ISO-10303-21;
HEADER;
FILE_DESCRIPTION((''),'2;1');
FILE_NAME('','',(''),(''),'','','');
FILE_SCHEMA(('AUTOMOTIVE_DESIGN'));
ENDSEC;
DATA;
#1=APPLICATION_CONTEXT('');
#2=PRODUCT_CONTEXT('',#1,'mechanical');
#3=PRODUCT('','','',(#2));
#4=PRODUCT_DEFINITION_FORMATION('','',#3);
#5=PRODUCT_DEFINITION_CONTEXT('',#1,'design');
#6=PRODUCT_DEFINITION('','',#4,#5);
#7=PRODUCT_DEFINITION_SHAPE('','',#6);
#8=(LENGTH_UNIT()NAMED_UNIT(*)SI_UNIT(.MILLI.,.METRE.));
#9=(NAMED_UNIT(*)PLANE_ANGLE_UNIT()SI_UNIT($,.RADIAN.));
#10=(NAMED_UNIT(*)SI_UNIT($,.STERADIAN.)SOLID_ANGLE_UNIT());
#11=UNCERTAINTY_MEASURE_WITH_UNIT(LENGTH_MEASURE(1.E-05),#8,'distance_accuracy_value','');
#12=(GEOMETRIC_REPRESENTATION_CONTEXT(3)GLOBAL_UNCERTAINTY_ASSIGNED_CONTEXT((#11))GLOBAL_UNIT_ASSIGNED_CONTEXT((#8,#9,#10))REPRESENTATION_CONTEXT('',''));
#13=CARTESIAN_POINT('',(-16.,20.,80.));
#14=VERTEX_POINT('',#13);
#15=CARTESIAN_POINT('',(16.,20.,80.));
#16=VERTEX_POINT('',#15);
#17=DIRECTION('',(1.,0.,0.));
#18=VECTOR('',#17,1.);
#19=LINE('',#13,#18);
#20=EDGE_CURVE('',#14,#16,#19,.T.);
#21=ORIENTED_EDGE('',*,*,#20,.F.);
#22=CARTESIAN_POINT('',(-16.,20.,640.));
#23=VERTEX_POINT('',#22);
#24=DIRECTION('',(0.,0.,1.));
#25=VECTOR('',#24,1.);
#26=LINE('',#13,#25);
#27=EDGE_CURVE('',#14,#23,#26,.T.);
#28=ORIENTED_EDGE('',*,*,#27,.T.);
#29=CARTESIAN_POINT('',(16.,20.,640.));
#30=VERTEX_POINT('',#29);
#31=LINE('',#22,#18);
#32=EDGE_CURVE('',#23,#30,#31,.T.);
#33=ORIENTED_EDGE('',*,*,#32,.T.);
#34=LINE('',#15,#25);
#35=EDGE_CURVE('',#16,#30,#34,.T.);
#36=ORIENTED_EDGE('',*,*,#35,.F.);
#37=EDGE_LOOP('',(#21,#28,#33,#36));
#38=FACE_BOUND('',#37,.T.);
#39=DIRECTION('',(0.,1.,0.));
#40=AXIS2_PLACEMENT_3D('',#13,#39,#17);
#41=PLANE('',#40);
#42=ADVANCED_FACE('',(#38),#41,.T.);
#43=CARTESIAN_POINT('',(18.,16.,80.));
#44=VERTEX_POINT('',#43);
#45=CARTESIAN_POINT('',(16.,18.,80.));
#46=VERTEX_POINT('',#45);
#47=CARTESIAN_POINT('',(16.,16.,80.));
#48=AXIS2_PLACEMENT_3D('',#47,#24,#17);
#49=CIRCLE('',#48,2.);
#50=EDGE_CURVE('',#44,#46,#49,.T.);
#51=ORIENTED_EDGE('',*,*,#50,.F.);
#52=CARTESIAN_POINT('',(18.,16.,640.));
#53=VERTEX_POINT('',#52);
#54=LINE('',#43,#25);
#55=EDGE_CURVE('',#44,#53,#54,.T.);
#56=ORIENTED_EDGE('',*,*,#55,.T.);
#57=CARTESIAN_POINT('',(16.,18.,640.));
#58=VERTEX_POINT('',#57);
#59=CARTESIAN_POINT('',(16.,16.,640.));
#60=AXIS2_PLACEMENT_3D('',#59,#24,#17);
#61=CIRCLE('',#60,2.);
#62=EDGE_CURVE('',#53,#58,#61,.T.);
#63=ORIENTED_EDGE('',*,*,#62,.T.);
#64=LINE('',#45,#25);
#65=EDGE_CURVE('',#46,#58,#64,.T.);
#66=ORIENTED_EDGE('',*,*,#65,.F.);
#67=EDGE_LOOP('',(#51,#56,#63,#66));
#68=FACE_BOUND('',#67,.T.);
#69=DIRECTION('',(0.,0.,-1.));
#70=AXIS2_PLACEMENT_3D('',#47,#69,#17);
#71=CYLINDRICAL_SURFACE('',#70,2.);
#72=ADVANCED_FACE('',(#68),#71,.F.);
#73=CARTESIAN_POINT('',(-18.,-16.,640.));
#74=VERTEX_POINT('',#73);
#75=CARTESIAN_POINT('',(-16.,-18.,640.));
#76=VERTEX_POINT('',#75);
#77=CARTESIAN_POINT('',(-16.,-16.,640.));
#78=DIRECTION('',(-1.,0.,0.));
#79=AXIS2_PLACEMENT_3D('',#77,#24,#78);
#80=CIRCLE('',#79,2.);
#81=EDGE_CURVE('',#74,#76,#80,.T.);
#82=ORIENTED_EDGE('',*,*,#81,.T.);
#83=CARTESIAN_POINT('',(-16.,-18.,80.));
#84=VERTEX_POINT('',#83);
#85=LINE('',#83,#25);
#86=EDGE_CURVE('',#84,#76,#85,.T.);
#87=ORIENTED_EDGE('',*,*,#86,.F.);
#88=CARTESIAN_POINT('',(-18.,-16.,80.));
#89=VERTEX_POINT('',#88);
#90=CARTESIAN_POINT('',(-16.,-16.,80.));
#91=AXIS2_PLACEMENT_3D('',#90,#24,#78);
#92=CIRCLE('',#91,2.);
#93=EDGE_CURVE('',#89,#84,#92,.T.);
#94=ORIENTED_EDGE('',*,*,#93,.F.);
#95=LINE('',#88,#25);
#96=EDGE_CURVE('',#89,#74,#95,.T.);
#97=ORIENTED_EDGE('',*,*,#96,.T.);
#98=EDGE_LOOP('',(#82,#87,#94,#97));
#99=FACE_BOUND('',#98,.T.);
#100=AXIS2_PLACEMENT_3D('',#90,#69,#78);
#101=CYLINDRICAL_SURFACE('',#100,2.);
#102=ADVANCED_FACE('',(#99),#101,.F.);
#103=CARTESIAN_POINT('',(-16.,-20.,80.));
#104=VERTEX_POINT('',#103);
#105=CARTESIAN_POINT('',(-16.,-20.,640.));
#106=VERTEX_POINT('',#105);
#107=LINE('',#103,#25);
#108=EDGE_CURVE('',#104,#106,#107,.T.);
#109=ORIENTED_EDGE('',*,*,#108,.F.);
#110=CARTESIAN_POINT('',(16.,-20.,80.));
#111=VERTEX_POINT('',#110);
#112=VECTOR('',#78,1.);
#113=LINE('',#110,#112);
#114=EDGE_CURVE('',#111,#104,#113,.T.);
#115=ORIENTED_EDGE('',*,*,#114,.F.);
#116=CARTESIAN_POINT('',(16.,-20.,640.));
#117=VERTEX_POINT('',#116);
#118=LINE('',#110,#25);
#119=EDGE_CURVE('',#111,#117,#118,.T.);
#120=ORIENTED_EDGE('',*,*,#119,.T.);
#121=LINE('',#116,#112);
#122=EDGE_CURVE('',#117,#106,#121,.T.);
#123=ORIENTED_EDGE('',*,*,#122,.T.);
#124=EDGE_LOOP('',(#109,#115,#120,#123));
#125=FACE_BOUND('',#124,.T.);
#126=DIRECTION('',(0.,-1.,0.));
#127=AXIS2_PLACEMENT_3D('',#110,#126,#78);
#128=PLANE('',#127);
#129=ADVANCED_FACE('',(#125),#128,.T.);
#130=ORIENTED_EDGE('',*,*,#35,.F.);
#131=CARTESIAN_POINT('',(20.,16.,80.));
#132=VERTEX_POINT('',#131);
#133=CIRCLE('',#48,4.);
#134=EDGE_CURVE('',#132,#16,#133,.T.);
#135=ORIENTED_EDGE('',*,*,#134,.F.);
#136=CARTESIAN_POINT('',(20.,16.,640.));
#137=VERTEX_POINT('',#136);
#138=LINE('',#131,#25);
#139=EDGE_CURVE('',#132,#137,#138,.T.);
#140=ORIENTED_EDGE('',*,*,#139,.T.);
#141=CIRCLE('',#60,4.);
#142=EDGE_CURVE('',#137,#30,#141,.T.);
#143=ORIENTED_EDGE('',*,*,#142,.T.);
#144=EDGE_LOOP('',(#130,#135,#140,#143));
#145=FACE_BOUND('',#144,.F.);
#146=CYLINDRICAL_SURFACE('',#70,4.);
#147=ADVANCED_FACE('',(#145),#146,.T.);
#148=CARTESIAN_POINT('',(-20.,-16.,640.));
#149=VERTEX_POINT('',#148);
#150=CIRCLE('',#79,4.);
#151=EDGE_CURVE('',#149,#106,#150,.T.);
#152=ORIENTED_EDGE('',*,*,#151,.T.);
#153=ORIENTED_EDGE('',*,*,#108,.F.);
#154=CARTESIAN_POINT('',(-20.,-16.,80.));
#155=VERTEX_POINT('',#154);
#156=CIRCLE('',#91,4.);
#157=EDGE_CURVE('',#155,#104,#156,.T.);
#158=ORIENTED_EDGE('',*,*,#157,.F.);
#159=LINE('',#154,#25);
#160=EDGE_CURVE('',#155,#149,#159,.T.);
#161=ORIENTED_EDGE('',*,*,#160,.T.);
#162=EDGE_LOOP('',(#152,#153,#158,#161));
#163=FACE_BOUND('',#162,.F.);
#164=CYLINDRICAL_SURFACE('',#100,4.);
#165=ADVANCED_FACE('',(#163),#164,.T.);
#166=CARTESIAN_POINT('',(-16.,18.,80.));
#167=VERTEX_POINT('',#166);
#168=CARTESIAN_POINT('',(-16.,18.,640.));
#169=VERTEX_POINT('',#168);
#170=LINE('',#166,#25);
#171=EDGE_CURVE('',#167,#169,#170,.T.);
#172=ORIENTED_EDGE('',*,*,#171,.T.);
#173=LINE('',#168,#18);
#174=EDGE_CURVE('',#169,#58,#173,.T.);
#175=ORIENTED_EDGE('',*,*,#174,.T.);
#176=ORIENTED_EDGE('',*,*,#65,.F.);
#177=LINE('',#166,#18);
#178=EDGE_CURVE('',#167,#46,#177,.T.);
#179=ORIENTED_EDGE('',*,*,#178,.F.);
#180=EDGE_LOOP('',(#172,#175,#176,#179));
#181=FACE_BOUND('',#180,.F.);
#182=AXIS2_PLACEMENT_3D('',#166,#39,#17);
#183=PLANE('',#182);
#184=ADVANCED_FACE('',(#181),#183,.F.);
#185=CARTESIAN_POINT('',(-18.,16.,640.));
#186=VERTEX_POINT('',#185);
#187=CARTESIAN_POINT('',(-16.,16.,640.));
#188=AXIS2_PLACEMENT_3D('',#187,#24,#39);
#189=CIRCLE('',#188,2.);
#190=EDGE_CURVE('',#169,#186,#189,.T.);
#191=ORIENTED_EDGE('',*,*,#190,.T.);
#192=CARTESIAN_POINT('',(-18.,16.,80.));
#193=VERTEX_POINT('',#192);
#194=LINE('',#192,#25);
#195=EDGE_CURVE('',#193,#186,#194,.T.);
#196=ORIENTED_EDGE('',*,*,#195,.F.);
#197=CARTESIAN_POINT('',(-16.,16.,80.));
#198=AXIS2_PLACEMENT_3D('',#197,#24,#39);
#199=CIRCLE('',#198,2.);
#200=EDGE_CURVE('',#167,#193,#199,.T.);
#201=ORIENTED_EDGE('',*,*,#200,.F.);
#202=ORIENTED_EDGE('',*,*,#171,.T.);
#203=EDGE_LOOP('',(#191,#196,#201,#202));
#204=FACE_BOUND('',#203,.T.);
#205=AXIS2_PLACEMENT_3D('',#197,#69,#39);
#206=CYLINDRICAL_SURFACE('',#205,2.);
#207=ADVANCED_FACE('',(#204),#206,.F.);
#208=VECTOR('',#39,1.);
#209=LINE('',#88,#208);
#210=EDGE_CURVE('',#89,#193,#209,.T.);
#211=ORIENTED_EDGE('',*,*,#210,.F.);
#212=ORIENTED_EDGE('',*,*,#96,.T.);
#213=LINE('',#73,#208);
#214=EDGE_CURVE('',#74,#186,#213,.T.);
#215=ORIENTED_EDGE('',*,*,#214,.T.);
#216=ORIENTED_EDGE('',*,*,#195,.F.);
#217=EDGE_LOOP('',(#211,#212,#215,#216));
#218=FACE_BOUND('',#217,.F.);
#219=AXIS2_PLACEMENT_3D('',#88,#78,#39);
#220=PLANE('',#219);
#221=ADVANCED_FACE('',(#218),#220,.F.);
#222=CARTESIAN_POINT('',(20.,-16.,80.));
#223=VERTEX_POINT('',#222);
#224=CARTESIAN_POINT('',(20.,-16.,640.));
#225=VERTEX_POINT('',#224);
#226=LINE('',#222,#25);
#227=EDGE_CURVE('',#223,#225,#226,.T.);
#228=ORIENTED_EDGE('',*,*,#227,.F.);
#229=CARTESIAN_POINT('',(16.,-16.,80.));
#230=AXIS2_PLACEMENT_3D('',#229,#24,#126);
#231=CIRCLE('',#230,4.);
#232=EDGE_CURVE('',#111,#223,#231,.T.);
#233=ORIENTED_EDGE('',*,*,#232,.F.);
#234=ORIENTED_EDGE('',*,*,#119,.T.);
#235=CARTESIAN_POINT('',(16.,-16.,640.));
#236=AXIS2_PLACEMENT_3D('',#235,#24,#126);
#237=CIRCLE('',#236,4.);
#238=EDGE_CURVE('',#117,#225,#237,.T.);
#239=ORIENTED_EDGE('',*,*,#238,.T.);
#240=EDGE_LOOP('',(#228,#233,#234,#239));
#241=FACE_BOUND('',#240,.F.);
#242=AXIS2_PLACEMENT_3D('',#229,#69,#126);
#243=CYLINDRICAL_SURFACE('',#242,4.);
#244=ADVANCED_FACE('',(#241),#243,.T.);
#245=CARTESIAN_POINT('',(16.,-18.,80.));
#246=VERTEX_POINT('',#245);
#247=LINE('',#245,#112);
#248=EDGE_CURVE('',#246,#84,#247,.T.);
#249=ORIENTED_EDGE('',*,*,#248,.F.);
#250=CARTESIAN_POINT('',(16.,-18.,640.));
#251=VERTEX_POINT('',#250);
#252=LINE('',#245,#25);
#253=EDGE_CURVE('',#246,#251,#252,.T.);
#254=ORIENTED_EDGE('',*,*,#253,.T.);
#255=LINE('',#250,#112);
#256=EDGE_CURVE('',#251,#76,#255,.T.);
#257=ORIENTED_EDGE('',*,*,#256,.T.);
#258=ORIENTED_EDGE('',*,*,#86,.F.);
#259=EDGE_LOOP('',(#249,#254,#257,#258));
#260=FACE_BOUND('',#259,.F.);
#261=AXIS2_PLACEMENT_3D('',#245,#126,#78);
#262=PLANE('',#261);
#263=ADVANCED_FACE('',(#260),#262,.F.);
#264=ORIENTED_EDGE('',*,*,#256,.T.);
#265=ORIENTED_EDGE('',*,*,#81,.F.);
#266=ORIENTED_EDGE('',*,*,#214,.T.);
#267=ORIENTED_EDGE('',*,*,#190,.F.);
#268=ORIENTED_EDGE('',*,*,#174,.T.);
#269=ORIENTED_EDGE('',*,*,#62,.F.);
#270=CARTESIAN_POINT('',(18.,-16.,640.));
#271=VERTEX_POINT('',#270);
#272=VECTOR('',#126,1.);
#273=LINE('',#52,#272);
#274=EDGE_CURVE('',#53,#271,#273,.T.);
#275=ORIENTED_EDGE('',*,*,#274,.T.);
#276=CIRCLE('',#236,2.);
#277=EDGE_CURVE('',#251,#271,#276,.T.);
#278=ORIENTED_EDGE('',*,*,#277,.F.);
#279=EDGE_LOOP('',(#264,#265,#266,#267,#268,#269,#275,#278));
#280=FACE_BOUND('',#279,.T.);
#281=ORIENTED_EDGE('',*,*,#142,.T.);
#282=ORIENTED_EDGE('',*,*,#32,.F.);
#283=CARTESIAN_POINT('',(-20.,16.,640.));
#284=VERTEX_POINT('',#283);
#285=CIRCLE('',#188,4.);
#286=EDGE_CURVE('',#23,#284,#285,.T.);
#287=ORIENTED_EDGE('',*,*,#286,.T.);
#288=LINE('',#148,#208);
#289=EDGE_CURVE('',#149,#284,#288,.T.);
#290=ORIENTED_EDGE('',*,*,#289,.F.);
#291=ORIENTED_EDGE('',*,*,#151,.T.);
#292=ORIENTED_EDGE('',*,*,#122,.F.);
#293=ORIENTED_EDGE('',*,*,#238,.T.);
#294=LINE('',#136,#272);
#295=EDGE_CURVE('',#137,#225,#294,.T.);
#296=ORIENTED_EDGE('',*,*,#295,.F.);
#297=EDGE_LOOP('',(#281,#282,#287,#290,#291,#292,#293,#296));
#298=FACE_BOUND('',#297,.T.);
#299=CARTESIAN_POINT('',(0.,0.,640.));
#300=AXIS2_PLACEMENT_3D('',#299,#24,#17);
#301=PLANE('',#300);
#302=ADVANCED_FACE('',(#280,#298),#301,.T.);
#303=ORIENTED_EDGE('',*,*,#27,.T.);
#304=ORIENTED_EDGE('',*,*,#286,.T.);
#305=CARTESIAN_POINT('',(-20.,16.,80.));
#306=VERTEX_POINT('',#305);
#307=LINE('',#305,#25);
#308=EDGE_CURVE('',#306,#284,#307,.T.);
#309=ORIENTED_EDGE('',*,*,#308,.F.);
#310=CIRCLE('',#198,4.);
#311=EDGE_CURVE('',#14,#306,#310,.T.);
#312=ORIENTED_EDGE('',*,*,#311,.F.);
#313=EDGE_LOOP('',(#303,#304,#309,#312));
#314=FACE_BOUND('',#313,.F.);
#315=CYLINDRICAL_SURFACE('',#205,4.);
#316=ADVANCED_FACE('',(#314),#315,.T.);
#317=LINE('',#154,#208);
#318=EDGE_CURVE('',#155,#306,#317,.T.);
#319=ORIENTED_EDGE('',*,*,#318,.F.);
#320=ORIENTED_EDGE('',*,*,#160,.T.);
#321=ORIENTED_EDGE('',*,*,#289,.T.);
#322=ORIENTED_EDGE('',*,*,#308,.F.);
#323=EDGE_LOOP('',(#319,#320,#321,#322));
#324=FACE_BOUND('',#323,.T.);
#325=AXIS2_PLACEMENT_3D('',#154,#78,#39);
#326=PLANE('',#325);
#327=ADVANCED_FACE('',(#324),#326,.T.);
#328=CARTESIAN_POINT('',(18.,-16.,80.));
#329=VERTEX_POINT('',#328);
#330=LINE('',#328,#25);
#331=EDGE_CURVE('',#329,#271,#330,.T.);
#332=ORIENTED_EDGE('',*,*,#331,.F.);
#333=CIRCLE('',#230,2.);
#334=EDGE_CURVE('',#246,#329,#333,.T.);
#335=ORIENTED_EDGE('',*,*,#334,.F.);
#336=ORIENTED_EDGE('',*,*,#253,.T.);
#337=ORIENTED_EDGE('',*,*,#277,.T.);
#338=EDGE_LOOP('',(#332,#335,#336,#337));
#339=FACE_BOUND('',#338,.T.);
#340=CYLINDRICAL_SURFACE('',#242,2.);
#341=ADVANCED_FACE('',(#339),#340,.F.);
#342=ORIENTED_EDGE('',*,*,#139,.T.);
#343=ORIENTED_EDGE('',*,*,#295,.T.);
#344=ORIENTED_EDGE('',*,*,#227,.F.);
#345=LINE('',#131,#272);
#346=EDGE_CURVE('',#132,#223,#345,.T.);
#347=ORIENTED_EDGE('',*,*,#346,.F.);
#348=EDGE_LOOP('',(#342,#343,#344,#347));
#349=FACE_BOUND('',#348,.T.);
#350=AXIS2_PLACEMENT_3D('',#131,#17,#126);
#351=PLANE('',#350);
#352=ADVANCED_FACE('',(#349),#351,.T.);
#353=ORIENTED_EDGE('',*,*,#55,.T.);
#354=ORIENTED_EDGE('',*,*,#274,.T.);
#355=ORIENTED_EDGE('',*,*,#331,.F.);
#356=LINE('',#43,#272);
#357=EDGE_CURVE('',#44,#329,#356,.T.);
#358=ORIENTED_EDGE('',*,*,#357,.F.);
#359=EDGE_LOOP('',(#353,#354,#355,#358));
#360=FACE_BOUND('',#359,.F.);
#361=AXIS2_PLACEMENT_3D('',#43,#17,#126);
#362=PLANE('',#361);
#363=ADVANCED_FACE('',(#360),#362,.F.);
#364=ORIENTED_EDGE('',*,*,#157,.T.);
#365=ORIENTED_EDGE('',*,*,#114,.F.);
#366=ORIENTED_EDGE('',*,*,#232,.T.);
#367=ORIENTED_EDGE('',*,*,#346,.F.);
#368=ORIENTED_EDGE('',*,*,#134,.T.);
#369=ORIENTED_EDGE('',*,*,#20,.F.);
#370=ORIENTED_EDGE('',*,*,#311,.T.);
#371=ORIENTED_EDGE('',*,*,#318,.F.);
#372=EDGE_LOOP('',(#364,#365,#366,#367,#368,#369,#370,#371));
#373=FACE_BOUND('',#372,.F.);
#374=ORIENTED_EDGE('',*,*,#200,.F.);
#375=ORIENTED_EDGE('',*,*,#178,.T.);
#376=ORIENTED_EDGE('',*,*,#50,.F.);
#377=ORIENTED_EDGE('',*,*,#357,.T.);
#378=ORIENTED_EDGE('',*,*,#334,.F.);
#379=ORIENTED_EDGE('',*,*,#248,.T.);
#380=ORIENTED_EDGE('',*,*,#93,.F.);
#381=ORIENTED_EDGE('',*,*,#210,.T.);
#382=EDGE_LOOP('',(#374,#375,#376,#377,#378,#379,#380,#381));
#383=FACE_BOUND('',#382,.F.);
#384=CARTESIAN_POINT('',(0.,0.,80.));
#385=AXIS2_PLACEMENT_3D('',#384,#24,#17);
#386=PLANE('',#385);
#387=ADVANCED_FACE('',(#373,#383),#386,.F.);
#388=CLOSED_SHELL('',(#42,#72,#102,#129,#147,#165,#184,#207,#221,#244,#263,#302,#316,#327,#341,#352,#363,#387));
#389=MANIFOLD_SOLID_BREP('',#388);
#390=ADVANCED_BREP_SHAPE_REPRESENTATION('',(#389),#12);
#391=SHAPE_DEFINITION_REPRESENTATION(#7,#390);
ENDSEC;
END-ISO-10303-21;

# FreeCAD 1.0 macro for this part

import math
import FreeCAD as App
import Part
import Sketcher
from FreeCAD import Vector
Q = App.Units.Quantity

doc = App.newDocument("Part")
body = doc.addObject("PartDesign::Body", "Body")

# Sketch on XY plane
sketch1 = body.newObject("Sketcher::SketchObject", "Sketch")
sketch1.AttachmentSupport = (doc.getObject("XY_Plane"), [""])
sketch1.MapMode = "FlatFace"
sketch1.AttachmentOffset = App.Placement(Vector(0, 0, 80), App.Rotation())
sketch1.addGeometry(Part.LineSegment(Vector(-20, 16, 0), Vector(-20, -16, 0)), False)
sketch1.addGeometry(Part.ArcOfCircle(Part.Circle(Vector(-16, -16, 0), Vector(0, 0, 1), 4), math.radians(180), math.radians(270)), False)
sketch1.addGeometry(Part.LineSegment(Vector(-16, -20, 0), Vector(16, -20, 0)), False)
sketch1.addGeometry(Part.ArcOfCircle(Part.Circle(Vector(16, -16, 0), Vector(0, 0, 1), 4), math.radians(-90), math.radians(0)), False)
sketch1.addGeometry(Part.LineSegment(Vector(20, -16, 0), Vector(20, 16, 0)), False)
sketch1.addGeometry(Part.ArcOfCircle(Part.Circle(Vector(16, 16, 0), Vector(0, 0, 1), 4), math.radians(0), math.radians(90)), False)
sketch1.addGeometry(Part.LineSegment(Vector(16, 20, 0), Vector(-16, 20, 0)), False)
sketch1.addGeometry(Part.ArcOfCircle(Part.Circle(Vector(-16, 16, 0), Vector(0, 0, 1), 4), math.radians(90), math.radians(180)), False)
sketch1.addGeometry(Part.ArcOfCircle(Part.Circle(Vector(-16, 16, 0), Vector(0, 0, 1), 2), math.radians(90), math.radians(180)), False)
sketch1.addGeometry(Part.LineSegment(Vector(-16, 18, 0), Vector(16, 18, 0)), False)
sketch1.addGeometry(Part.ArcOfCircle(Part.Circle(Vector(16, 16, 0), Vector(0, 0, 1), 2), math.radians(0), math.radians(90)), False)
sketch1.addGeometry(Part.LineSegment(Vector(18, 16, 0), Vector(18, -16, 0)), False)
sketch1.addGeometry(Part.ArcOfCircle(Part.Circle(Vector(16, -16, 0), Vector(0, 0, 1), 2), math.radians(-90), math.radians(0)), False)
sketch1.addGeometry(Part.LineSegment(Vector(16, -18, 0), Vector(-16, -18, 0)), False)
sketch1.addGeometry(Part.ArcOfCircle(Part.Circle(Vector(-16, -16, 0), Vector(0, 0, 1), 2), math.radians(180), math.radians(270)), False)
sketch1.addGeometry(Part.LineSegment(Vector(-18, -16, 0), Vector(-18, 16, 0)), False)
sketch1.addConstraint(Sketcher.Constraint("Tangent", 0, 2, 1, 1))
sketch1.addConstraint(Sketcher.Constraint("Tangent", 1, 2, 2, 1))
sketch1.addConstraint(Sketcher.Constraint("Tangent", 2, 2, 3, 1))
sketch1.addConstraint(Sketcher.Constraint("Tangent", 3, 2, 4, 1))
sketch1.addConstraint(Sketcher.Constraint("Tangent", 4, 2, 5, 1))
sketch1.addConstraint(Sketcher.Constraint("Tangent", 5, 2, 6, 1))
sketch1.addConstraint(Sketcher.Constraint("Tangent", 6, 2, 7, 1))
sketch1.addConstraint(Sketcher.Constraint("Tangent", 7, 2, 0, 1))
sketch1.addConstraint(Sketcher.Constraint("Tangent", 8, 1, 9, 1))
sketch1.addConstraint(Sketcher.Constraint("Tangent", 9, 2, 10, 2))
sketch1.addConstraint(Sketcher.Constraint("Tangent", 10, 1, 11, 1))
sketch1.addConstraint(Sketcher.Constraint("Tangent", 11, 2, 12, 2))
sketch1.addConstraint(Sketcher.Constraint("Tangent", 12, 1, 13, 1))
sketch1.addConstraint(Sketcher.Constraint("Tangent", 13, 2, 14, 2))
sketch1.addConstraint(Sketcher.Constraint("Tangent", 14, 1, 15, 1))
sketch1.addConstraint(Sketcher.Constraint("Tangent", 15, 2, 8, 2))
sketch1.addConstraint(Sketcher.Constraint("Vertical", 0))
sketch1.addConstraint(Sketcher.Constraint("Horizontal", 2))
sketch1.addConstraint(Sketcher.Constraint("Vertical", 4))
sketch1.addConstraint(Sketcher.Constraint("Horizontal", 6))
sketch1.addConstraint(Sketcher.Constraint("Horizontal", 9))
sketch1.addConstraint(Sketcher.Constraint("Vertical", 11))
sketch1.addConstraint(Sketcher.Constraint("Horizontal", 13))
sketch1.addConstraint(Sketcher.Constraint("Vertical", 15))
sketch1.addConstraint(Sketcher.Constraint("Coincident", 8, 3, 7, 3))
sketch1.addConstraint(Sketcher.Constraint("Coincident", 10, 3, 5, 3))
sketch1.addConstraint(Sketcher.Constraint("Coincident", 12, 3, 3, 3))
sketch1.addConstraint(Sketcher.Constraint("Equal", 1, 3))
sketch1.addConstraint(Sketcher.Constraint("Equal", 3, 5))
sketch1.addConstraint(Sketcher.Constraint("Equal", 5, 7))
sketch1.addConstraint(Sketcher.Constraint("Equal", 12, 14))
sketch1.addConstraint(Sketcher.Constraint("Symmetric", 1, 3, 5, 3, -1, 1))
sketch1.addConstraint(Sketcher.Constraint("Equal", 13, 0))
sketch1.addConstraint(Sketcher.Constraint("Radius", 1, Q("4 mm")))
sketch1.addConstraint(Sketcher.Constraint("Radius", 8, Q("2 mm")))
sketch1.addConstraint(Sketcher.Constraint("DistanceX", 0, 2, -1, 1, Q("20 mm")))
pad1 = body.newObject("PartDesign::Pad", "Pad")
pad1.Profile = sketch1
pad1.Length = 560

doc.recompute()
